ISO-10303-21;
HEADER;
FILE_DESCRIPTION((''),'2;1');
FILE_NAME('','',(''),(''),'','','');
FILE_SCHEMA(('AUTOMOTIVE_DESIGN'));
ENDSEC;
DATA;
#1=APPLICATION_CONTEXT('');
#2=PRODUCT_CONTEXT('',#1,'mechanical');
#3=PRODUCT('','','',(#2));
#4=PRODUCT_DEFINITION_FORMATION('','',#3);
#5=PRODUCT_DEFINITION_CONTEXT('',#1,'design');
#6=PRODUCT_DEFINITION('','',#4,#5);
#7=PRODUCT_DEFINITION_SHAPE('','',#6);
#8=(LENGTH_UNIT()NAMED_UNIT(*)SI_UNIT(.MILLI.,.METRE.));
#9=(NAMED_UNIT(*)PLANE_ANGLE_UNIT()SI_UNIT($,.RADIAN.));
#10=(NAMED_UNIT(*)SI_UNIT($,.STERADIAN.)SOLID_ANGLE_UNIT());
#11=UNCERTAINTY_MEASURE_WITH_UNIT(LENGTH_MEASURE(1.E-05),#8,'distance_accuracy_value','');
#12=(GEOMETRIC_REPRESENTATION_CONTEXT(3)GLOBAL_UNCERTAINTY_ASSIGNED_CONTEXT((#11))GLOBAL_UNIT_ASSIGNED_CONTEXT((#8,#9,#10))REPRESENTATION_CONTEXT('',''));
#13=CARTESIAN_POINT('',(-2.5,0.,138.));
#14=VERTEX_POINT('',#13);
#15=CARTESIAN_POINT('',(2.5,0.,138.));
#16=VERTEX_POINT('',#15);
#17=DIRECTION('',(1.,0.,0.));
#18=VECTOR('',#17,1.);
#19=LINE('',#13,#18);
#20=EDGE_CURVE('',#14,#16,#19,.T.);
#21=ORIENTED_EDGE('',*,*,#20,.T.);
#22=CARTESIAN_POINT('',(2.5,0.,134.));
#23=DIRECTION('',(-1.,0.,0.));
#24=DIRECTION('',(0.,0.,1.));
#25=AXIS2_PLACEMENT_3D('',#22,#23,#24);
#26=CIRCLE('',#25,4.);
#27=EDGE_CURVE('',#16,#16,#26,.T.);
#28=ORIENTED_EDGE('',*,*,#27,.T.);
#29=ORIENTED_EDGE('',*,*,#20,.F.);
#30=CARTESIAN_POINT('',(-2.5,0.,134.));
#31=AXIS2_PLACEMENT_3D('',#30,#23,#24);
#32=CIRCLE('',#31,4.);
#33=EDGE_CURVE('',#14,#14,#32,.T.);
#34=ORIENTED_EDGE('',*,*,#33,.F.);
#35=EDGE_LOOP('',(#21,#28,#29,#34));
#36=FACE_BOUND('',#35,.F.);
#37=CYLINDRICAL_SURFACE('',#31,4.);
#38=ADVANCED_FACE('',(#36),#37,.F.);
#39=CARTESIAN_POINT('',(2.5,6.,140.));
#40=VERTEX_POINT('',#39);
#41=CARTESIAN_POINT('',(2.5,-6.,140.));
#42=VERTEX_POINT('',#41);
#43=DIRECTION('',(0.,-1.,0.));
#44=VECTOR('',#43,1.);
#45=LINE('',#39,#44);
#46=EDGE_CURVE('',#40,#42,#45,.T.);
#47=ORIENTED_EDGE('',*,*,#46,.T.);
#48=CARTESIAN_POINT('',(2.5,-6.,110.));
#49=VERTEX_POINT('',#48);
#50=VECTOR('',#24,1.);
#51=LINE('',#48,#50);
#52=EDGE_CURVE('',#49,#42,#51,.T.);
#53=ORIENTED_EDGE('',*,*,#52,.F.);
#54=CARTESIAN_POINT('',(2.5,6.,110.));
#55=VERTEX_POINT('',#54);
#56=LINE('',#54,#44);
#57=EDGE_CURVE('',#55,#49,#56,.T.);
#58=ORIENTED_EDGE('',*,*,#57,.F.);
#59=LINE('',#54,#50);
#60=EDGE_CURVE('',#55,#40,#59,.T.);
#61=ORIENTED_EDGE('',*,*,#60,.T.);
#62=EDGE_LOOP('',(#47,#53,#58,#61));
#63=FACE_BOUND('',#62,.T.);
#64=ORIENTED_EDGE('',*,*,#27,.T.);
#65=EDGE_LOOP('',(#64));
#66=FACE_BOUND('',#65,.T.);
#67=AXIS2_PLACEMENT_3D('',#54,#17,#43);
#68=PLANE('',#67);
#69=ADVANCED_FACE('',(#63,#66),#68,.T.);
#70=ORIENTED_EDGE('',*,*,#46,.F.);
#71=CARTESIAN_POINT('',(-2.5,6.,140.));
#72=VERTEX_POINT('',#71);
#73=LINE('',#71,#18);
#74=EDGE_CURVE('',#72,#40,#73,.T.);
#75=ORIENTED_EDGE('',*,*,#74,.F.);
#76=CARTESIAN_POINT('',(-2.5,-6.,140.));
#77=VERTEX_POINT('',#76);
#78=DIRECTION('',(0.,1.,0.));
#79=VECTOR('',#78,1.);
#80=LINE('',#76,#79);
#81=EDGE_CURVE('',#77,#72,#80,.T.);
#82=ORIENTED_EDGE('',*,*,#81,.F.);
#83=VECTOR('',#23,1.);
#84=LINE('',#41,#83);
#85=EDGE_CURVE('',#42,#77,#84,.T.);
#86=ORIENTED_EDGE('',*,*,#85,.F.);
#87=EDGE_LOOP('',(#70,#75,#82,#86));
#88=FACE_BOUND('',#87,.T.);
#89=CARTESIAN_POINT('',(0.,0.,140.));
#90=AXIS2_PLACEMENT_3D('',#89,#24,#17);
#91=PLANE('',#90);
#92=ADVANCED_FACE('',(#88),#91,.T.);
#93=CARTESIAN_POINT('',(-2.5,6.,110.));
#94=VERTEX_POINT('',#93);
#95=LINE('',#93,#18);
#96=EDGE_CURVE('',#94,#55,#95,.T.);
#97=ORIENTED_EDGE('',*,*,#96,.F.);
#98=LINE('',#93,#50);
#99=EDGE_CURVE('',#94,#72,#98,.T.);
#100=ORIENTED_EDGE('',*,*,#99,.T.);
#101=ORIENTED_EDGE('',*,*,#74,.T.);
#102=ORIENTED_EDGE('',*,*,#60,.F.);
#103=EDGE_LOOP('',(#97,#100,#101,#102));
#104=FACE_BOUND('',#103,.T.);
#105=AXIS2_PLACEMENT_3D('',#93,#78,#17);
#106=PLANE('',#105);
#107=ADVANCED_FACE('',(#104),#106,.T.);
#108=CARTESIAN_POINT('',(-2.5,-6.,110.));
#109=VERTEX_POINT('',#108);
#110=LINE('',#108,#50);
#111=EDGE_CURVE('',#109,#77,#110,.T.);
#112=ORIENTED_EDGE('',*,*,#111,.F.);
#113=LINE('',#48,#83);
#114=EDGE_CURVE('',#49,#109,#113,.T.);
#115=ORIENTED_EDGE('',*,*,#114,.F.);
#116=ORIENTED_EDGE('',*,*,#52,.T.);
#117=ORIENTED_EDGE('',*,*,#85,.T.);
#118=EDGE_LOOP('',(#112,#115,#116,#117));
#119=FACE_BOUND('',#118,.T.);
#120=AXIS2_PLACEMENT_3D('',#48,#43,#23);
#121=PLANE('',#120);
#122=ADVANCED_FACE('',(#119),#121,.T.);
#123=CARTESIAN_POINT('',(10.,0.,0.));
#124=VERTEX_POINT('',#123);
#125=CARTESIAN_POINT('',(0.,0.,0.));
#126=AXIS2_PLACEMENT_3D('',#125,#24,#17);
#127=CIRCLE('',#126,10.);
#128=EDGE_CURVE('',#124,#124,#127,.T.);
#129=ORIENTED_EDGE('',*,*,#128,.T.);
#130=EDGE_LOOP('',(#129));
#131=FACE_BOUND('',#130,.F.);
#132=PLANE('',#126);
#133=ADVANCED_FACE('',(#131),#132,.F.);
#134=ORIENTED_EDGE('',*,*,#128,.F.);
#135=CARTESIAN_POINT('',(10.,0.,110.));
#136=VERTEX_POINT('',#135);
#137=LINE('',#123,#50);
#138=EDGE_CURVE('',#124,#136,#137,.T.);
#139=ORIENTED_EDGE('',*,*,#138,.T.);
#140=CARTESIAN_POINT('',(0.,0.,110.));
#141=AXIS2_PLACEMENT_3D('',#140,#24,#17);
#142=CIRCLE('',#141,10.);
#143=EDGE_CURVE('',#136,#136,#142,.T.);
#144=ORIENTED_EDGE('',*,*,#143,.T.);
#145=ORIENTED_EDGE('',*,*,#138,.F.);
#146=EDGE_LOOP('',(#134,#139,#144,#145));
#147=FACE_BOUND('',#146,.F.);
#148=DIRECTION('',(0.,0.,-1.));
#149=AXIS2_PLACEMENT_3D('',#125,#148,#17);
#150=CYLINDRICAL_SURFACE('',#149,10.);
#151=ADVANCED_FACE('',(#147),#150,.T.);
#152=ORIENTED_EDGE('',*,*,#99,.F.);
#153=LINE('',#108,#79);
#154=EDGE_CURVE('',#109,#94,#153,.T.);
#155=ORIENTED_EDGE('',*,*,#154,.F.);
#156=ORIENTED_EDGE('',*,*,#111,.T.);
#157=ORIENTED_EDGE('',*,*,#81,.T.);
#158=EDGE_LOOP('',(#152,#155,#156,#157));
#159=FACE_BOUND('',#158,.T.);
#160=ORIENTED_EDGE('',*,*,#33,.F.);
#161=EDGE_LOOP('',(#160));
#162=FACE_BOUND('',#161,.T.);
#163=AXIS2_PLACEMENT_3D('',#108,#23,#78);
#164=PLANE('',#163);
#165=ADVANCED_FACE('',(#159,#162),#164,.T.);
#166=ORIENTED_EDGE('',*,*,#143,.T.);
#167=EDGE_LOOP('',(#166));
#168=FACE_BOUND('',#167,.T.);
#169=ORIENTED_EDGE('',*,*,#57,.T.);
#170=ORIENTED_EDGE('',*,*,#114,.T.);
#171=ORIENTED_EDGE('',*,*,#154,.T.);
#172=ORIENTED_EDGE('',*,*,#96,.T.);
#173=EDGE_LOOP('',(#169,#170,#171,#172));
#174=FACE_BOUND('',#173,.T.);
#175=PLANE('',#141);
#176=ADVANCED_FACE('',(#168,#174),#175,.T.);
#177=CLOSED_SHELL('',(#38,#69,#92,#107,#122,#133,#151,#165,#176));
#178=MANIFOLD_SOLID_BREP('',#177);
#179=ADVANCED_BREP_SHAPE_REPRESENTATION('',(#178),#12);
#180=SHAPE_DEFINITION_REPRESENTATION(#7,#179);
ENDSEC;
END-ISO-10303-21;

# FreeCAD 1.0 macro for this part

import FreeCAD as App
import Part
import Sketcher
Q = App.Units.Quantity

doc = App.newDocument("Part")
body = doc.addObject("PartDesign::Body", "Body")

# Sketch on XY plane
sketch1 = doc.addObject("Sketcher::SketchObject", "Sketch")
body.addObject(sketch1)
sketch1.AttachmentSupport = (doc.XY_Plane, [""])
sketch1.MapMode = "FlatFace"
sketch1.addGeometry(Part.Circle(App.Vector(0, 0, 0), App.Vector(0, 0, 1), 10), False)
sketch1.addConstraint(Sketcher.Constraint("Coincident", 0, 3, -1, 1))
sketch1.addConstraint(Sketcher.Constraint("Diameter", 0, Q("20 mm")))
pad1 = doc.addObject("PartDesign::Pad", "Pad")
body.addObject(pad1)
pad1.Profile = sketch1
pad1.Length = 110

# Sketch on XY plane
sketch2 = doc.addObject("Sketcher::SketchObject", "Sketch001")
body.addObject(sketch2)
sketch2.AttachmentSupport = (doc.XY_Plane, [""])
sketch2.MapMode = "FlatFace"
sketch2.AttachmentOffset = App.Placement(App.Vector(0, 0, 110), App.Rotation())
sketch2.addGeometry(Part.LineSegment(App.Vector(-2, -6, 0), App.Vector(2, -6, 0)), False)
sketch2.addGeometry(Part.LineSegment(App.Vector(2, -6, 0), App.Vector(2, 6, 0)), False)
sketch2.addGeometry(Part.LineSegment(App.Vector(2, 6, 0), App.Vector(-2, 6, 0)), False)
sketch2.addGeometry(Part.LineSegment(App.Vector(-2, 6, 0), App.Vector(-2, -6, 0)), False)
sketch2.addConstraint(Sketcher.Constraint("Coincident", 0, 2, 1, 1))
sketch2.addConstraint(Sketcher.Constraint("Coincident", 1, 2, 2, 1))
sketch2.addConstraint(Sketcher.Constraint("Coincident", 2, 2, 3, 1))
sketch2.addConstraint(Sketcher.Constraint("Coincident", 3, 2, 0, 1))
sketch2.addConstraint(Sketcher.Constraint("Horizontal", 0))
sketch2.addConstraint(Sketcher.Constraint("Vertical", 1))
sketch2.addConstraint(Sketcher.Constraint("Horizontal", 2))
sketch2.addConstraint(Sketcher.Constraint("Vertical", 3))
sketch2.addConstraint(Sketcher.Constraint("Symmetric", 0, 2, 2, 2, -1, 1))
sketch2.addConstraint(Sketcher.Constraint("DistanceX", 0, 1, 0, 2, Q("5 mm")))
sketch2.addConstraint(Sketcher.Constraint("DistanceY", 1, 1, 1, 2, Q("12 mm")))
pad2 = doc.addObject("PartDesign::Pad", "Pad001")
body.addObject(pad2)
pad2.Profile = sketch2
pad2.Length = 30

# Sketch on YZ plane
sketch3 = doc.addObject("Sketcher::SketchObject", "Sketch002")
body.addObject(sketch3)
sketch3.AttachmentSupport = (doc.YZ_Plane, [""])
sketch3.MapMode = "FlatFace"
sketch3.AttachmentOffset = App.Placement(App.Vector(0, 0, -2.5), App.Rotation())
sketch3.addGeometry(Part.Circle(App.Vector(0, 134, 0), App.Vector(0, 0, 1), 4), False)
sketch3.addConstraint(Sketcher.Constraint("PointOnObject", 0, 3, -2))
sketch3.addConstraint(Sketcher.Constraint("Diameter", 0, Q("8 mm")))
sketch3.addConstraint(Sketcher.Constraint("DistanceY", -1, 1, 0, 3, Q("134 mm")))
pocket1 = doc.addObject("PartDesign::Pocket", "Pocket")
body.addObject(pocket1)
pocket1.Profile = sketch3
pocket1.Length = 30
pocket1.Reversed = True

doc.recompute()
